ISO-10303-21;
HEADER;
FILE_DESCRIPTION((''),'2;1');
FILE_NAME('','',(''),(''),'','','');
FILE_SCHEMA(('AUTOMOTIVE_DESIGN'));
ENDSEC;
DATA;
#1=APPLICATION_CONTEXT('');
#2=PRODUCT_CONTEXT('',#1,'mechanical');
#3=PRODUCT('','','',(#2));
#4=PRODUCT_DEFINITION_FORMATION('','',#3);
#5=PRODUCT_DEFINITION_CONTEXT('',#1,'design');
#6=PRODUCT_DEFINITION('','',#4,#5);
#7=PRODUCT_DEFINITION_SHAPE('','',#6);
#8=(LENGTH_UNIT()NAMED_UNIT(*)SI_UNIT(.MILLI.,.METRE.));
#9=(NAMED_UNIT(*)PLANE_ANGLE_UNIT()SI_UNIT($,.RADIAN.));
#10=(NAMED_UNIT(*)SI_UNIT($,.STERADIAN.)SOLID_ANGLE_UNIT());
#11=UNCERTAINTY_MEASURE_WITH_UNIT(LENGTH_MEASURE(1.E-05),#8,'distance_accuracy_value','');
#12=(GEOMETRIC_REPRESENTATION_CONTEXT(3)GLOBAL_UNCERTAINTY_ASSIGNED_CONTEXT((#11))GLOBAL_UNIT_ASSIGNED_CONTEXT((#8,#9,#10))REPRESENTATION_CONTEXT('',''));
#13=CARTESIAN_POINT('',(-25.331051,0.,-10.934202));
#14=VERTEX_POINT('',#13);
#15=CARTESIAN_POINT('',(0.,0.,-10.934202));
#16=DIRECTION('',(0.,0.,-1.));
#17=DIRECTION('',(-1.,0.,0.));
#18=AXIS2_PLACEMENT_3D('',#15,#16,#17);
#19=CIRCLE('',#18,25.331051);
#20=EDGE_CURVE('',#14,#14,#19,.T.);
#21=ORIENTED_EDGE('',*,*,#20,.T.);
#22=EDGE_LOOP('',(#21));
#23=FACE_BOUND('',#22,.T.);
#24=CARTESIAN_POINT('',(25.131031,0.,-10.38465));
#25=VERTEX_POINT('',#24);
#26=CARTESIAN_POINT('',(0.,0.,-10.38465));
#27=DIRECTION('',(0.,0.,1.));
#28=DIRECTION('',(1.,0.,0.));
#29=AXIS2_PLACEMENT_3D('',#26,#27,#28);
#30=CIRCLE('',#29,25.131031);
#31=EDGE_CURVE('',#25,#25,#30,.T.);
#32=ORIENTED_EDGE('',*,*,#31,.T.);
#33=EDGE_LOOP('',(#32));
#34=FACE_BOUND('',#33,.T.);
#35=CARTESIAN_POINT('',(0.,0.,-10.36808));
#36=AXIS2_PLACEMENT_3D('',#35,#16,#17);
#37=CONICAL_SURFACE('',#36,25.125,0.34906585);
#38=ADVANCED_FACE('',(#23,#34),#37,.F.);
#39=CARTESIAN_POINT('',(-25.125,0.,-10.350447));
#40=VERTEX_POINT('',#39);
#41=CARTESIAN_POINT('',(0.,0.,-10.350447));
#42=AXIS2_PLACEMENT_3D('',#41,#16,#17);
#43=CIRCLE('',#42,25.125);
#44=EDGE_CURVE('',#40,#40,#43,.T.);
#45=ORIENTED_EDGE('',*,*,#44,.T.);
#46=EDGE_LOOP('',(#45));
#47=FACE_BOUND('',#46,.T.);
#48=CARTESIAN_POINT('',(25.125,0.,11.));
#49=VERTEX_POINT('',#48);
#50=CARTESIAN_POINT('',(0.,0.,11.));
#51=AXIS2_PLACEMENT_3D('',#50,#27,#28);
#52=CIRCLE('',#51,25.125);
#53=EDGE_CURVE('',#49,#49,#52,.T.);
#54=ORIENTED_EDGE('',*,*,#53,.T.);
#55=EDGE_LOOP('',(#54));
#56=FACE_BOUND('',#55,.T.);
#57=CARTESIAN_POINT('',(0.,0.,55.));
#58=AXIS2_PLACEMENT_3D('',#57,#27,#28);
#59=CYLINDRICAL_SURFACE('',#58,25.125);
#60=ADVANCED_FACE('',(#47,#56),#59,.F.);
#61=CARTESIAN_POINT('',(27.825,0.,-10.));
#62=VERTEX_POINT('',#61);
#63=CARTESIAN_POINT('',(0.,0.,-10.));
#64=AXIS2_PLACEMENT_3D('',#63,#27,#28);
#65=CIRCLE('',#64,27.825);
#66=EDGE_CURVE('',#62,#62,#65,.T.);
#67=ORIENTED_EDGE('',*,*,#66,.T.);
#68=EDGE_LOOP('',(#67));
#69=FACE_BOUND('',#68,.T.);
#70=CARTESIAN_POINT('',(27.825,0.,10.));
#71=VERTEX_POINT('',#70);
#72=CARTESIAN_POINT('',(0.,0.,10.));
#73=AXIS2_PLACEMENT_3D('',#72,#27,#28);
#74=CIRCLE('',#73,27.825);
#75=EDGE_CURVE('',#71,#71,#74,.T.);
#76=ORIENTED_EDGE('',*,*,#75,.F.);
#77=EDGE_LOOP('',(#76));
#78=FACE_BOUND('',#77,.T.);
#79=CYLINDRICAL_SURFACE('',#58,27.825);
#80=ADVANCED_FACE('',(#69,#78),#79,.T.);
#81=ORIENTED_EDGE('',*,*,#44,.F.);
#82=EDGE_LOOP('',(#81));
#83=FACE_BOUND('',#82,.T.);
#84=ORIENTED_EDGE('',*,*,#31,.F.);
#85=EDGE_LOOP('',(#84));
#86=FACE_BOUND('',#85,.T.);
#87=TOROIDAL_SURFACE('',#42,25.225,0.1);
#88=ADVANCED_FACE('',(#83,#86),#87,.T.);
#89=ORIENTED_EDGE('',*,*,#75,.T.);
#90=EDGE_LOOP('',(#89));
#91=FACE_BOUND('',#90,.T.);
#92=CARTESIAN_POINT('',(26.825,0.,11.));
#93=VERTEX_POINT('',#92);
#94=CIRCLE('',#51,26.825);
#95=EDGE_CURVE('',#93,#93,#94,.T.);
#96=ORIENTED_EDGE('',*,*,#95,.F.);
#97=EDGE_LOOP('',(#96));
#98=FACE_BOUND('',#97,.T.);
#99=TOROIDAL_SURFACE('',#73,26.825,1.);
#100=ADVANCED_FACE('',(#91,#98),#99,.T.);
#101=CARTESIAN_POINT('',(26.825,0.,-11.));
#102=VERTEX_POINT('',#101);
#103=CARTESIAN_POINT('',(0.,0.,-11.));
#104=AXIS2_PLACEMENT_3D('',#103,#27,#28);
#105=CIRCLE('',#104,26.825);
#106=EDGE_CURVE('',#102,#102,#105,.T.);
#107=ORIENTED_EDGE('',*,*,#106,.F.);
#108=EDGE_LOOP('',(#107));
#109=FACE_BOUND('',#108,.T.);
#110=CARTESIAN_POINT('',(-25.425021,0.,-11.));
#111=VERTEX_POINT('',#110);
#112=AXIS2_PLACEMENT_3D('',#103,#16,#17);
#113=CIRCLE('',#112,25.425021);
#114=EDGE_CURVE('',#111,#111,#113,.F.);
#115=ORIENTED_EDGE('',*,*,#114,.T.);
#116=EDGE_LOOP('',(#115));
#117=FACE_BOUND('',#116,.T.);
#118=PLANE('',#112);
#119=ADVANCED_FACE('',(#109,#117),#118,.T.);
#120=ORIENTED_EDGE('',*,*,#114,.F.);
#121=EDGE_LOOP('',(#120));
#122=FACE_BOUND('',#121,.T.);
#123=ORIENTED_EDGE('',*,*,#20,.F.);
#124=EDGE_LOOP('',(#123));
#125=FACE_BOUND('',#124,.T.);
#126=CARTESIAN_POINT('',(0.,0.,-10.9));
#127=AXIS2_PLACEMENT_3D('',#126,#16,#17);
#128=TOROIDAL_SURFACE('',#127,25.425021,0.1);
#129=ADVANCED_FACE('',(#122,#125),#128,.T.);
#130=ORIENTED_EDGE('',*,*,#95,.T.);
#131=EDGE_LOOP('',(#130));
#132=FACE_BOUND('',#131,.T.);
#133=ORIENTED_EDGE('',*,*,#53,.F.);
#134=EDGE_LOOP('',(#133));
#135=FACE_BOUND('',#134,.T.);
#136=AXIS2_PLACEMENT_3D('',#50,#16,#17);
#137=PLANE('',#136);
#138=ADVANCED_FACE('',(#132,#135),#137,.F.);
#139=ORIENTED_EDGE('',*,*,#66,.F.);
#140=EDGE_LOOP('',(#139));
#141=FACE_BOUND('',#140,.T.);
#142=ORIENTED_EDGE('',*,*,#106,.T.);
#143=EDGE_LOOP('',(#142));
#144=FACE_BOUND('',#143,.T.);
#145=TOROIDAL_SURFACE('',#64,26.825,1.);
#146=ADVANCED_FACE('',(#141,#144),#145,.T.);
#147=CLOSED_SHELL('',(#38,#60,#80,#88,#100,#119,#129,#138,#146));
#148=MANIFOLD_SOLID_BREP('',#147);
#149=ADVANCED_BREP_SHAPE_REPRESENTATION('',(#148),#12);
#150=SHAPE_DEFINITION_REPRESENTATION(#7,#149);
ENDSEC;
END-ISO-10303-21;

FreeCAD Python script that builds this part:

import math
import FreeCAD as App
import Part
import Sketcher
from FreeCAD import Vector
Q = App.Units.Quantity


def edges_at(feature, points):
    """Names of the edges that pass closest to the given points."""
    edges = feature.Shape.Edges
    near = lambda p: min(range(len(edges)), key=lambda i: edges[i].distToShape(Part.Vertex(*p))[0])
    return sorted({f"Edge{near(p) + 1}" for p in points})

doc = App.newDocument("Part")
body = doc.addObject("PartDesign::Body", "Body")

# Sketch on YZ plane
sketch1 = body.newObject("Sketcher::SketchObject", "Sketch")
sketch1.AttachmentSupport = (doc.getObject("YZ_Plane"), [""])
sketch1.MapMode = "FlatFace"
sketch1.addGeometry(Part.LineSegment(Vector(27.8, -10, 0), Vector(27.8, 10, 0)), False)
sketch1.addGeometry(Part.ArcOfCircle(Part.Circle(Vector(26.8, 10, 0), Vector(0, 0, 1), 1), math.radians(0), math.radians(90)), False)
sketch1.addGeometry(Part.LineSegment(Vector(26.8, 11, 0), Vector(25.1, 11, 0)), False)
sketch1.addGeometry(Part.LineSegment(Vector(25.1, 11, 0), Vector(25.1, -10.4, 0)), False)
sketch1.addGeometry(Part.LineSegment(Vector(25.1, -10.4, 0), Vector(25.4, -11, 0)), False)
sketch1.addGeometry(Part.LineSegment(Vector(25.4, -11, 0), Vector(26.8, -11, 0)), False)
sketch1.addGeometry(Part.ArcOfCircle(Part.Circle(Vector(26.8, -10, 0), Vector(0, 0, 1), 1), math.radians(-90), math.radians(0)), False)
sketch1.addConstraint(Sketcher.Constraint("Tangent", 0, 2, 1, 1))
sketch1.addConstraint(Sketcher.Constraint("Tangent", 1, 2, 2, 1))
sketch1.addConstraint(Sketcher.Constraint("Coincident", 2, 2, 3, 1))
sketch1.addConstraint(Sketcher.Constraint("Coincident", 3, 2, 4, 1))
sketch1.addConstraint(Sketcher.Constraint("Coincident", 4, 2, 5, 1))
sketch1.addConstraint(Sketcher.Constraint("Tangent", 5, 2, 6, 1))
sketch1.addConstraint(Sketcher.Constraint("Tangent", 6, 2, 0, 1))
sketch1.addConstraint(Sketcher.Constraint("Vertical", 0))
sketch1.addConstraint(Sketcher.Constraint("Horizontal", 2))
sketch1.addConstraint(Sketcher.Constraint("Vertical", 3))
sketch1.addConstraint(Sketcher.Constraint("Horizontal", 5))
sketch1.addConstraint(Sketcher.Constraint("Equal", 1, 6))
sketch1.addConstraint(Sketcher.Constraint("Radius", 1, Q("1 mm")))
sketch1.addConstraint(Sketcher.Constraint("DistanceY", 0, 1, 0, 2, Q("20 mm")))
sketch1.addConstraint(Sketcher.Constraint("Angle", 4, Q("-70 deg")))
sketch1.addConstraint(Sketcher.Constraint("DistanceX", 2, 2, 2, 1, Q("1.7 mm")))
sketch1.addConstraint(Sketcher.Constraint("DistanceY", -1, 1, 1, 3, Q("10 mm")))
sketch1.addConstraint(Sketcher.Constraint("DistanceX", 5, 1, 5, 2, Q("1.47 mm")))
sketch1.addConstraint(Sketcher.Constraint("DistanceX", -1, 1, 1, 3, Q("26.825 mm")))
revolution = body.newObject("PartDesign::Revolution", "Revolution")
revolution.Profile = sketch1
revolution.ReferenceAxis = (sketch1, ["V_Axis"])
revolution.Angle = 360
doc.recompute()

fillet = body.newObject("PartDesign::Fillet", "Fillet")
fillet.Base = (revolution, edges_at(revolution, [(-25.355, 0, -11), (-25.125, 0, -10.368)]))
fillet.Radius = 0.1

doc.recompute()
